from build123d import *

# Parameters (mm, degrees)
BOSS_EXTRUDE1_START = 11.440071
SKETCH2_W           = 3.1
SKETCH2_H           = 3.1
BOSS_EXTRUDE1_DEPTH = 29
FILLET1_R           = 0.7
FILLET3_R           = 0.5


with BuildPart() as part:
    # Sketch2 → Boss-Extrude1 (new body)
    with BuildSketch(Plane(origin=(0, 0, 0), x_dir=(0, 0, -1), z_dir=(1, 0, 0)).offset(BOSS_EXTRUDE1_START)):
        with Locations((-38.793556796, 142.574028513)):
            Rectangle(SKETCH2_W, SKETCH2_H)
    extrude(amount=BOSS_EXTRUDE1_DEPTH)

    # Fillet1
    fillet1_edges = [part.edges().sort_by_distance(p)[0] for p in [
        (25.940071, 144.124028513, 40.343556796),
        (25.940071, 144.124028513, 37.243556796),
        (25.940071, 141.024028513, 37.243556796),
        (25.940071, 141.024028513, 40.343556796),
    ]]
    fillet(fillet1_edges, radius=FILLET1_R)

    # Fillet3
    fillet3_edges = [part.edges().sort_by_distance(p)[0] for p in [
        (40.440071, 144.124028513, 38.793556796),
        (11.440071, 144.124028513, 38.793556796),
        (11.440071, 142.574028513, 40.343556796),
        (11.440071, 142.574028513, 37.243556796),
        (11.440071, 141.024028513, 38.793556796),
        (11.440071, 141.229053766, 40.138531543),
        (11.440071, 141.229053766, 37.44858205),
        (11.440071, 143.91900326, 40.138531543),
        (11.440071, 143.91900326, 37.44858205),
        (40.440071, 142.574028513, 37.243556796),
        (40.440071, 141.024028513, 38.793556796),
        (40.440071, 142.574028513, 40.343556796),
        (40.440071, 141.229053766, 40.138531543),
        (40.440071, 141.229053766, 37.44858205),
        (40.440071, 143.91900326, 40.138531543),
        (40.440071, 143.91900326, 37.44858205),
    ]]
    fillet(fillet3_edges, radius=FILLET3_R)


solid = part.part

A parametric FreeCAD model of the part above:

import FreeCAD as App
import Part
import Sketcher

V = App.Vector


def edges_at(feature, points):
    """Names of the edges that pass closest to the given points."""
    edges = feature.Shape.Edges
    near = lambda p: min(range(len(edges)), key=lambda i: edges[i].distToShape(Part.Vertex(*p))[0])
    return sorted({f"Edge{near(p) + 1}" for p in points})

doc = App.newDocument("Part")
params = doc.addObject("Spreadsheet::Sheet", "Params")
for row, (alias, value) in enumerate([
    ("sketch1_width", "3.1 mm"),
    ("pad1_length", "29 mm"),
    ("fillet_radius", "0.7 mm"),
    ("fillet2_radius", "0.5 mm"),
], start=1):
    params.set(f"A{row}", alias)
    params.set(f"B{row}", "=" + value)
    params.setAlias(f"B{row}", alias)

body = doc.addObject("PartDesign::Body", "Body")

# Sketch on YZ plane
sketch1 = body.newObject("Sketcher::SketchObject", "Sketch")
sketch1.AttachmentSupport = (doc.getObject("YZ_Plane"), [""])
sketch1.MapMode = "FlatFace"
sketch1.AttachmentOffset = App.Placement(V(0, 0, 11.440071), App.Rotation())
sketch1.addGeometry([
    Part.LineSegment(V(144.1, 40.3, 0), V(141, 40.3, 0)),
    Part.LineSegment(V(141, 40.3, 0), V(141, 37.2, 0)),
    Part.LineSegment(V(141, 37.2, 0), V(144.1, 37.2, 0)),
    Part.LineSegment(V(144.1, 37.2, 0), V(144.1, 40.3, 0)),
], False)
sketch1.addConstraint([
    Sketcher.Constraint("Coincident", 0, 2, 1, 1),
    Sketcher.Constraint("Coincident", 1, 2, 2, 1),
    Sketcher.Constraint("Coincident", 2, 2, 3, 1),
    Sketcher.Constraint("Coincident", 3, 2, 0, 1),
    Sketcher.Constraint("Horizontal", 0),
    Sketcher.Constraint("Vertical", 1),
    Sketcher.Constraint("Horizontal", 2),
    Sketcher.Constraint("Vertical", 3),
    Sketcher.Constraint("Equal", 2, 1),
    Sketcher.Constraint("DistanceX", 0, 2, 0, 1, 3.1),
    Sketcher.Constraint("DistanceX", -1, 1, 0, 2, 141.024029),
    Sketcher.Constraint("DistanceY", -1, 1, 0, 2, 40.343557),
])
sketch1.setExpression("Constraints[9]", "Params.sketch1_width")
pad1 = body.newObject("PartDesign::Pad", "Pad")
pad1.Profile = sketch1
pad1.setExpression("Length", "Params.pad1_length")
doc.recompute()

fillet = body.newObject("PartDesign::Fillet", "Fillet")
fillet.Base = (pad1, edges_at(pad1, [
    (25.94, 144.124, 40.344),
    (25.94, 144.124, 37.244),
    (25.94, 141.024, 37.244),
    (25.94, 141.024, 40.344),
]))
fillet.setExpression("Radius", "Params.fillet_radius")
doc.recompute()

fillet2 = body.newObject("PartDesign::Fillet", "Fillet001")
fillet2.Base = (fillet, edges_at(fillet, [
    (40.44, 144.124, 38.794),
    (11.44, 144.124, 38.794),
    (11.44, 142.574, 40.344),
    (11.44, 142.574, 37.244),
    (11.44, 141.024, 38.794),
    (11.44, 141.229, 40.139),
    (11.44, 141.229, 37.449),
    (11.44, 143.919, 40.139),
    (11.44, 143.919, 37.449),
    (40.44, 142.574, 37.244),
    (40.44, 141.024, 38.794),
    (40.44, 142.574, 40.344),
    (40.44, 141.229, 40.139),
    (40.44, 141.229, 37.449),
    (40.44, 143.919, 40.139),
    (40.44, 143.919, 37.449),
]))
fillet2.setExpression("Radius", "Params.fillet2_radius")

doc.recompute()
